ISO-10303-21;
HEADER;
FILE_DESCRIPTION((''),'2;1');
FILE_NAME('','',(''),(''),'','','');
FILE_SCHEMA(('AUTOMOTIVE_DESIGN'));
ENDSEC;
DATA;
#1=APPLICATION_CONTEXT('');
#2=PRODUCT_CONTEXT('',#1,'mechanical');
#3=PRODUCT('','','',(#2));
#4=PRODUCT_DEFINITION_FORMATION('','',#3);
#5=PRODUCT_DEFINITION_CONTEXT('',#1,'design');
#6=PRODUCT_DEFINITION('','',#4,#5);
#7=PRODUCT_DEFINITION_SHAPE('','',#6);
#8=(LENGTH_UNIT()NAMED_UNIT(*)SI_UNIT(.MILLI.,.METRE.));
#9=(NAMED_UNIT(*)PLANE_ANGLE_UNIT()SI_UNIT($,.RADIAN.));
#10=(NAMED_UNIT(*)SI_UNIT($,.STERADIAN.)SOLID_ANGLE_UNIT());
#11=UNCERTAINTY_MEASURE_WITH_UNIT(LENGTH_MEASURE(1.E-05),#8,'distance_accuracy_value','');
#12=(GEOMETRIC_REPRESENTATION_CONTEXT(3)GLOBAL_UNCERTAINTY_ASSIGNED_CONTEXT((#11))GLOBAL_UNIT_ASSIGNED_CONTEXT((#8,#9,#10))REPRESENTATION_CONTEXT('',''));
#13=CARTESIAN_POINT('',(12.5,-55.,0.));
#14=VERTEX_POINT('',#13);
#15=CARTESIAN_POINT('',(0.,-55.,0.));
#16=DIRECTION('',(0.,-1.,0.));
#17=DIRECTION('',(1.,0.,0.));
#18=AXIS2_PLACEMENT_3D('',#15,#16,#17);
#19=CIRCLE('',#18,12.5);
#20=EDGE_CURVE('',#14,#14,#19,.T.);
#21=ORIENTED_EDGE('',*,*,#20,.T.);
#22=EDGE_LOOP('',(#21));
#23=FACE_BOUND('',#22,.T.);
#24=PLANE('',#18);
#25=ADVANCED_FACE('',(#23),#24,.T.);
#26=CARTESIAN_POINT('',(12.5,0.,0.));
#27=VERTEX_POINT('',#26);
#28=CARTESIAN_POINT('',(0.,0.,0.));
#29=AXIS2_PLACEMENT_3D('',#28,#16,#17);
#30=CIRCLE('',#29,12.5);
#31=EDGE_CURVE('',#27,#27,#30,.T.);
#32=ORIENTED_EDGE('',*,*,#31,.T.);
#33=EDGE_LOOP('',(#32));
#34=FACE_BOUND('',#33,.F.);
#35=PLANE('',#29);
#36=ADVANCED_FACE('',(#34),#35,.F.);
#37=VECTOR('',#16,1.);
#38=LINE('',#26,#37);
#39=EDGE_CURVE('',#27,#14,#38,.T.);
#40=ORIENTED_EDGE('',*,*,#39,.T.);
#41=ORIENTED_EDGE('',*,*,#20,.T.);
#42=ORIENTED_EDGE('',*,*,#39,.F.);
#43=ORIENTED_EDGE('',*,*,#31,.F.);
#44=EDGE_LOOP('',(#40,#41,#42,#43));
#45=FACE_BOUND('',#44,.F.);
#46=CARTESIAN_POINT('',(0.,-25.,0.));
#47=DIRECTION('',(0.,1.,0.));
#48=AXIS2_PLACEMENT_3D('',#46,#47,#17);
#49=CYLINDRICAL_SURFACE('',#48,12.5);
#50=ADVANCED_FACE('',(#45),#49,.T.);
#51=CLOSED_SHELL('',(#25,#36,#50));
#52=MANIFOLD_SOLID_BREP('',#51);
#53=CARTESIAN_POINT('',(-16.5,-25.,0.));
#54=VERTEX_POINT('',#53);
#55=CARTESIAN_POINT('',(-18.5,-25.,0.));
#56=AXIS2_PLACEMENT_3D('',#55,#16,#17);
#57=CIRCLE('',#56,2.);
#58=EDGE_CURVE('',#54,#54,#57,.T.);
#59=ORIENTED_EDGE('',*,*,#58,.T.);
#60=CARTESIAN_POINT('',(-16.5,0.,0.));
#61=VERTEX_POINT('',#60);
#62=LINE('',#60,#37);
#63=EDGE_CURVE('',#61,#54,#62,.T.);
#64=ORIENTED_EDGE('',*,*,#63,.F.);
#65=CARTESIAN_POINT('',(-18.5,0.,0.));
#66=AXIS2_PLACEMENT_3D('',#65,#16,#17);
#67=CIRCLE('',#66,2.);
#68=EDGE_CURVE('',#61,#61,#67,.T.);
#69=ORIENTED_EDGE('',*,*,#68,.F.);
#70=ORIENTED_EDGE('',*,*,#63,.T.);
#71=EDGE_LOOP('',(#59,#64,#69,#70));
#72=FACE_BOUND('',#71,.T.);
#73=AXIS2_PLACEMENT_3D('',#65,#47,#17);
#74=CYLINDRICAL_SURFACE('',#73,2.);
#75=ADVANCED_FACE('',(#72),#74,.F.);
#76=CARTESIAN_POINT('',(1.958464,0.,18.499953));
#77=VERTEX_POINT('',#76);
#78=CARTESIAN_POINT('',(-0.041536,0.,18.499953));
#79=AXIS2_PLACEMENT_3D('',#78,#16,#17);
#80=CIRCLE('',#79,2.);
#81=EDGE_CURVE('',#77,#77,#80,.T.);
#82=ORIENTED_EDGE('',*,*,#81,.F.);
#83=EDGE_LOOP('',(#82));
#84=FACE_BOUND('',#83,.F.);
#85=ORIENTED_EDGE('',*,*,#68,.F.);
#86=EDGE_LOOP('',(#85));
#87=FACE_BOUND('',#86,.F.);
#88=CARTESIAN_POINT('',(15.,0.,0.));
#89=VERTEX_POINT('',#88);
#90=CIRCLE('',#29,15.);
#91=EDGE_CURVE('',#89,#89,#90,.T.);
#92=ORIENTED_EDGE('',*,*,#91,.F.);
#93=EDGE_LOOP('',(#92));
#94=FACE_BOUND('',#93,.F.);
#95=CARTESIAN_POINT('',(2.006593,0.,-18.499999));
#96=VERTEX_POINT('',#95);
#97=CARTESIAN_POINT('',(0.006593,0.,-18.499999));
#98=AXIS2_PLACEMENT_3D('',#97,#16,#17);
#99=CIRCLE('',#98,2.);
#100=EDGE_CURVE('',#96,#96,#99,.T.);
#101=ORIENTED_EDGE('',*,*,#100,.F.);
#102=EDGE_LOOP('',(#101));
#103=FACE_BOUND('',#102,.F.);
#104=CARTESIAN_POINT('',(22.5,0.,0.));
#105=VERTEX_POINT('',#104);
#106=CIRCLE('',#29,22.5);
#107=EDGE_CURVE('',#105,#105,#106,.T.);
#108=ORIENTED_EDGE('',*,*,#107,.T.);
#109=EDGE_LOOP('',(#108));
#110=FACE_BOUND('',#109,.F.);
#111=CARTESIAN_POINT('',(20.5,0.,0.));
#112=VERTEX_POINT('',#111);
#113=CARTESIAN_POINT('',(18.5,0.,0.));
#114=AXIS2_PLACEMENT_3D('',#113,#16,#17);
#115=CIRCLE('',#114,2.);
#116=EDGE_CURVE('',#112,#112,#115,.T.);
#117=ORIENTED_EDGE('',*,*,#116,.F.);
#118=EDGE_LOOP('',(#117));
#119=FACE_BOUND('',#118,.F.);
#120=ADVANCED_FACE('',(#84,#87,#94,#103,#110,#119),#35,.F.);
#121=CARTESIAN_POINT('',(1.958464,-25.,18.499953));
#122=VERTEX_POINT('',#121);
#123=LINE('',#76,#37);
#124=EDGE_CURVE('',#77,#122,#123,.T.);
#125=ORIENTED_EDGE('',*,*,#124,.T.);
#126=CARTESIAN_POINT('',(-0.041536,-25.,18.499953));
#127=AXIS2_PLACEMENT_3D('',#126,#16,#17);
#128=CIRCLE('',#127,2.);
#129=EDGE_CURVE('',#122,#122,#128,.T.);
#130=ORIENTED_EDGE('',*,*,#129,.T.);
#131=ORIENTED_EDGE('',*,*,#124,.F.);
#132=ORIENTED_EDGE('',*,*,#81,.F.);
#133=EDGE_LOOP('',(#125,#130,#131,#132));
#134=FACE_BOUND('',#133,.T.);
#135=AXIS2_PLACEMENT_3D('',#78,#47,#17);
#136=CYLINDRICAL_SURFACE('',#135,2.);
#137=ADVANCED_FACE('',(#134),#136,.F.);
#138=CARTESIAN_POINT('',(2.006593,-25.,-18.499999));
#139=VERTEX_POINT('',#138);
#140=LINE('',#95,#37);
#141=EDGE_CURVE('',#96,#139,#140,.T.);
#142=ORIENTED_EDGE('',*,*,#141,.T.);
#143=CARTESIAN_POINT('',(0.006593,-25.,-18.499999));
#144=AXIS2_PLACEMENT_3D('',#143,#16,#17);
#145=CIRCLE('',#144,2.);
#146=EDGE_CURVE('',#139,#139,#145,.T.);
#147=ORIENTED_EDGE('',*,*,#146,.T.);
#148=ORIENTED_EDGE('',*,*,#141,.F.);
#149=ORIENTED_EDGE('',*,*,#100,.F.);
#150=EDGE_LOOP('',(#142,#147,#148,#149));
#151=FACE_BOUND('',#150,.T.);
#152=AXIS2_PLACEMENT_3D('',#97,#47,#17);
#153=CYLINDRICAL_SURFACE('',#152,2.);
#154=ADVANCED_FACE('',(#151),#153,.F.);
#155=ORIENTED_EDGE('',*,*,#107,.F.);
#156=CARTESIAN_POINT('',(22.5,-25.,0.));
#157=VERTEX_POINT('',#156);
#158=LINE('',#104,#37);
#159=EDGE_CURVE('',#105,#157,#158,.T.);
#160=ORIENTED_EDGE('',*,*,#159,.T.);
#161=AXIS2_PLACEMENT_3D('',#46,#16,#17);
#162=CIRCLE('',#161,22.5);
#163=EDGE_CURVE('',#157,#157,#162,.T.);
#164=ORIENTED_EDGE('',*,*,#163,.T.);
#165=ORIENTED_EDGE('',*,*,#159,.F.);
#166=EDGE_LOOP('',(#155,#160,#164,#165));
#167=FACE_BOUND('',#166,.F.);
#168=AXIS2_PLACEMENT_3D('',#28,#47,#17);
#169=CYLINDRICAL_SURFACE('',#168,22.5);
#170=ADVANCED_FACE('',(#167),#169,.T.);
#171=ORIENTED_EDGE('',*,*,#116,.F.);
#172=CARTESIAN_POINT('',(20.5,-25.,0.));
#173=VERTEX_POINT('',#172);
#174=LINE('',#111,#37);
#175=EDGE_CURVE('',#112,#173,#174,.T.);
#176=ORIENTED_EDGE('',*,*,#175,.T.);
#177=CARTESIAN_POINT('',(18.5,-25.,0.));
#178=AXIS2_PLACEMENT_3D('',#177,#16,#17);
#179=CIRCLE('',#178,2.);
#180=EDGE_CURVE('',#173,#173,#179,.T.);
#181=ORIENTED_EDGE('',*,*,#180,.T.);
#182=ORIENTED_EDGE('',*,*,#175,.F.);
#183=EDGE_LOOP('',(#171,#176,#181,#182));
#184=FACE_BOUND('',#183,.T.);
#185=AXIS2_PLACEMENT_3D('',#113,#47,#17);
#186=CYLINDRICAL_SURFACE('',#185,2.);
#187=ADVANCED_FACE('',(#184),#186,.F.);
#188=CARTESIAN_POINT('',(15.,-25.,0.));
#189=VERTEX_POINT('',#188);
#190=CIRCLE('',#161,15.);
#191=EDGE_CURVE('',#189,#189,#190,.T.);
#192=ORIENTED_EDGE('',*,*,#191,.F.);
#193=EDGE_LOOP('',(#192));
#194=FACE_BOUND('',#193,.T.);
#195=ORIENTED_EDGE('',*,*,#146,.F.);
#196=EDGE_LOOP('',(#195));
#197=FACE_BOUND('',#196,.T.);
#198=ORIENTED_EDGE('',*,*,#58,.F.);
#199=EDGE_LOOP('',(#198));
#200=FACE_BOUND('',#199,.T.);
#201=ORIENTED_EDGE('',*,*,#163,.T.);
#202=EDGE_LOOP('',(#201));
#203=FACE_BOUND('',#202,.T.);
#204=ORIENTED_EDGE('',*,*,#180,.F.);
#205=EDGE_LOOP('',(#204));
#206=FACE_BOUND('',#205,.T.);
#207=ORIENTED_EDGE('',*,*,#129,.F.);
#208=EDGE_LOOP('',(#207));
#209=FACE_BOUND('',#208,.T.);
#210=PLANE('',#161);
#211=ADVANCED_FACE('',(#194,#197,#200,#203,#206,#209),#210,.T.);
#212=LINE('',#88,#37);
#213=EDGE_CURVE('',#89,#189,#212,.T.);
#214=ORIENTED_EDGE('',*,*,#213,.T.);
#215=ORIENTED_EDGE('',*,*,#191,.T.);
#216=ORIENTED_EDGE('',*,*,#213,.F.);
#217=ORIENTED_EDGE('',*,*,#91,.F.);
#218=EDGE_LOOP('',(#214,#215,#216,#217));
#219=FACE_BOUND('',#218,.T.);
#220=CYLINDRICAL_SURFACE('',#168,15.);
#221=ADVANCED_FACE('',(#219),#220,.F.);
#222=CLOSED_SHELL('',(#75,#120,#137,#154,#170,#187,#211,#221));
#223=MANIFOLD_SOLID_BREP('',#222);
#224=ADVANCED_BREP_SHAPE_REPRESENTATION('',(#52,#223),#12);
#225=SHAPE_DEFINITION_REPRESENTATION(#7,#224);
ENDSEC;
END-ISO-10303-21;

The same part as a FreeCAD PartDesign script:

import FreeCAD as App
import Part
import Sketcher
from FreeCAD import Vector
Q = App.Units.Quantity

doc = App.newDocument("Part")
params = doc.addObject("Spreadsheet::Sheet", "Params")
for row, (alias, value) in enumerate([
    ("sketch1_diameter", "45 mm"),
    ("sketch1_diameter2", "4 mm"),
    ("sketch1_diameter3", "30 mm"),
    ("sketch1_diameter4", "25 mm"),
    ("pad1_length", "25 mm"),
    ("sketch2_diameter", "25 mm"),
    ("pad2_length", "30 mm"),
], start=1):
    params.set(f"A{row}", alias)
    params.set(f"B{row}", "=" + value)
    params.setAlias(f"B{row}", alias)

body = doc.addObject("PartDesign::Body", "Body")
body.AllowCompound = True

# Sketch on XZ plane
sketch1 = body.newObject("Sketcher::SketchObject", "Sketch")
sketch1.AttachmentSupport = (doc.getObject("XZ_Plane"), [""])
sketch1.MapMode = "FlatFace"
sketch1.addGeometry([
    Part.Circle(Vector(0, 0, 0), Vector(0, 0, 1), 22.5),  # 0
    Part.Circle(Vector(0.006593, -18.499999, 0), Vector(0, 0, 1), 2),  # 1
    Part.Circle(Vector(-18.5, 0, 0), Vector(0, 0, 1), 2),  # 2
    Part.Circle(Vector(-0.041536, 18.499953, 0), Vector(0, 0, 1), 2),  # 3
    Part.Circle(Vector(0, 0, 0), Vector(0, 0, 1), 15),  # 4
    Part.Circle(Vector(18.5, 0, 0), Vector(0, 0, 1), 2),  # 5
    Part.Circle(Vector(0, 0, 0), Vector(0, 0, 1), 12.5),  # 6
], False)
sketch1.addConstraint([
    Sketcher.Constraint("Coincident", 0, 3, -1, 1),
    Sketcher.Constraint("Coincident", 4, 3, -1, 1),
    Sketcher.Constraint("Coincident", 6, 3, -1, 1),
    Sketcher.Constraint("Equal", 1, 2),
    Sketcher.Constraint("Equal", 2, 3),
    Sketcher.Constraint("Equal", 3, 5),
    Sketcher.Constraint("Symmetric", 2, 3, 5, 3, -1, 1),
    Sketcher.Constraint("PointOnObject", 2, 3, -1),
    Sketcher.Constraint("Diameter", 0, Q("45 mm")),
    Sketcher.Constraint("Diameter", 1, Q("4 mm")),
    Sketcher.Constraint("Diameter", 4, Q("30 mm")),
    Sketcher.Constraint("Diameter", 6, Q("25 mm")),
    Sketcher.Constraint("DistanceX", 2, 3, 5, 3, Q("37 mm")),
    Sketcher.Constraint("DistanceY", 1, 3, -1, 1, Q("18.499999 mm")),
    Sketcher.Constraint("DistanceX", 3, 3, 1, 3, Q("0.048129 mm")),
    Sketcher.Constraint("DistanceX", -1, 1, 1, 3, Q("0.006593 mm")),
    Sketcher.Constraint("DistanceY", -1, 1, 3, 3, Q("18.499953 mm")),
])
sketch1.setExpression("Constraints[8]", "Params.sketch1_diameter")
sketch1.setExpression("Constraints[9]", "Params.sketch1_diameter2")
sketch1.setExpression("Constraints[10]", "Params.sketch1_diameter3")
sketch1.setExpression("Constraints[11]", "Params.sketch1_diameter4")
pad1 = body.newObject("PartDesign::Pad", "Pad")
pad1.Profile = sketch1
pad1.setExpression("Length", "Params.pad1_length")

# Sketch on XZ plane
sketch2 = body.newObject("Sketcher::SketchObject", "Sketch001")
sketch2.AttachmentSupport = (doc.getObject("XZ_Plane"), [""])
sketch2.MapMode = "FlatFace"
sketch2.AttachmentOffset = App.Placement(Vector(0, 0, 25), App.Rotation())
sketch2.addGeometry(Part.Circle(Vector(0, 0, 0), Vector(0, 0, 1), 12.5), False)
sketch2.addConstraint([
    Sketcher.Constraint("Coincident", 0, 3, -1, 1),
    Sketcher.Constraint("Diameter", 0, Q("25 mm")),
])
sketch2.setExpression("Constraints[1]", "Params.sketch2_diameter")
pad2 = body.newObject("PartDesign::Pad", "Pad001")
pad2.Profile = sketch2
pad2.setExpression("Length", "Params.pad2_length")

doc.recompute()
